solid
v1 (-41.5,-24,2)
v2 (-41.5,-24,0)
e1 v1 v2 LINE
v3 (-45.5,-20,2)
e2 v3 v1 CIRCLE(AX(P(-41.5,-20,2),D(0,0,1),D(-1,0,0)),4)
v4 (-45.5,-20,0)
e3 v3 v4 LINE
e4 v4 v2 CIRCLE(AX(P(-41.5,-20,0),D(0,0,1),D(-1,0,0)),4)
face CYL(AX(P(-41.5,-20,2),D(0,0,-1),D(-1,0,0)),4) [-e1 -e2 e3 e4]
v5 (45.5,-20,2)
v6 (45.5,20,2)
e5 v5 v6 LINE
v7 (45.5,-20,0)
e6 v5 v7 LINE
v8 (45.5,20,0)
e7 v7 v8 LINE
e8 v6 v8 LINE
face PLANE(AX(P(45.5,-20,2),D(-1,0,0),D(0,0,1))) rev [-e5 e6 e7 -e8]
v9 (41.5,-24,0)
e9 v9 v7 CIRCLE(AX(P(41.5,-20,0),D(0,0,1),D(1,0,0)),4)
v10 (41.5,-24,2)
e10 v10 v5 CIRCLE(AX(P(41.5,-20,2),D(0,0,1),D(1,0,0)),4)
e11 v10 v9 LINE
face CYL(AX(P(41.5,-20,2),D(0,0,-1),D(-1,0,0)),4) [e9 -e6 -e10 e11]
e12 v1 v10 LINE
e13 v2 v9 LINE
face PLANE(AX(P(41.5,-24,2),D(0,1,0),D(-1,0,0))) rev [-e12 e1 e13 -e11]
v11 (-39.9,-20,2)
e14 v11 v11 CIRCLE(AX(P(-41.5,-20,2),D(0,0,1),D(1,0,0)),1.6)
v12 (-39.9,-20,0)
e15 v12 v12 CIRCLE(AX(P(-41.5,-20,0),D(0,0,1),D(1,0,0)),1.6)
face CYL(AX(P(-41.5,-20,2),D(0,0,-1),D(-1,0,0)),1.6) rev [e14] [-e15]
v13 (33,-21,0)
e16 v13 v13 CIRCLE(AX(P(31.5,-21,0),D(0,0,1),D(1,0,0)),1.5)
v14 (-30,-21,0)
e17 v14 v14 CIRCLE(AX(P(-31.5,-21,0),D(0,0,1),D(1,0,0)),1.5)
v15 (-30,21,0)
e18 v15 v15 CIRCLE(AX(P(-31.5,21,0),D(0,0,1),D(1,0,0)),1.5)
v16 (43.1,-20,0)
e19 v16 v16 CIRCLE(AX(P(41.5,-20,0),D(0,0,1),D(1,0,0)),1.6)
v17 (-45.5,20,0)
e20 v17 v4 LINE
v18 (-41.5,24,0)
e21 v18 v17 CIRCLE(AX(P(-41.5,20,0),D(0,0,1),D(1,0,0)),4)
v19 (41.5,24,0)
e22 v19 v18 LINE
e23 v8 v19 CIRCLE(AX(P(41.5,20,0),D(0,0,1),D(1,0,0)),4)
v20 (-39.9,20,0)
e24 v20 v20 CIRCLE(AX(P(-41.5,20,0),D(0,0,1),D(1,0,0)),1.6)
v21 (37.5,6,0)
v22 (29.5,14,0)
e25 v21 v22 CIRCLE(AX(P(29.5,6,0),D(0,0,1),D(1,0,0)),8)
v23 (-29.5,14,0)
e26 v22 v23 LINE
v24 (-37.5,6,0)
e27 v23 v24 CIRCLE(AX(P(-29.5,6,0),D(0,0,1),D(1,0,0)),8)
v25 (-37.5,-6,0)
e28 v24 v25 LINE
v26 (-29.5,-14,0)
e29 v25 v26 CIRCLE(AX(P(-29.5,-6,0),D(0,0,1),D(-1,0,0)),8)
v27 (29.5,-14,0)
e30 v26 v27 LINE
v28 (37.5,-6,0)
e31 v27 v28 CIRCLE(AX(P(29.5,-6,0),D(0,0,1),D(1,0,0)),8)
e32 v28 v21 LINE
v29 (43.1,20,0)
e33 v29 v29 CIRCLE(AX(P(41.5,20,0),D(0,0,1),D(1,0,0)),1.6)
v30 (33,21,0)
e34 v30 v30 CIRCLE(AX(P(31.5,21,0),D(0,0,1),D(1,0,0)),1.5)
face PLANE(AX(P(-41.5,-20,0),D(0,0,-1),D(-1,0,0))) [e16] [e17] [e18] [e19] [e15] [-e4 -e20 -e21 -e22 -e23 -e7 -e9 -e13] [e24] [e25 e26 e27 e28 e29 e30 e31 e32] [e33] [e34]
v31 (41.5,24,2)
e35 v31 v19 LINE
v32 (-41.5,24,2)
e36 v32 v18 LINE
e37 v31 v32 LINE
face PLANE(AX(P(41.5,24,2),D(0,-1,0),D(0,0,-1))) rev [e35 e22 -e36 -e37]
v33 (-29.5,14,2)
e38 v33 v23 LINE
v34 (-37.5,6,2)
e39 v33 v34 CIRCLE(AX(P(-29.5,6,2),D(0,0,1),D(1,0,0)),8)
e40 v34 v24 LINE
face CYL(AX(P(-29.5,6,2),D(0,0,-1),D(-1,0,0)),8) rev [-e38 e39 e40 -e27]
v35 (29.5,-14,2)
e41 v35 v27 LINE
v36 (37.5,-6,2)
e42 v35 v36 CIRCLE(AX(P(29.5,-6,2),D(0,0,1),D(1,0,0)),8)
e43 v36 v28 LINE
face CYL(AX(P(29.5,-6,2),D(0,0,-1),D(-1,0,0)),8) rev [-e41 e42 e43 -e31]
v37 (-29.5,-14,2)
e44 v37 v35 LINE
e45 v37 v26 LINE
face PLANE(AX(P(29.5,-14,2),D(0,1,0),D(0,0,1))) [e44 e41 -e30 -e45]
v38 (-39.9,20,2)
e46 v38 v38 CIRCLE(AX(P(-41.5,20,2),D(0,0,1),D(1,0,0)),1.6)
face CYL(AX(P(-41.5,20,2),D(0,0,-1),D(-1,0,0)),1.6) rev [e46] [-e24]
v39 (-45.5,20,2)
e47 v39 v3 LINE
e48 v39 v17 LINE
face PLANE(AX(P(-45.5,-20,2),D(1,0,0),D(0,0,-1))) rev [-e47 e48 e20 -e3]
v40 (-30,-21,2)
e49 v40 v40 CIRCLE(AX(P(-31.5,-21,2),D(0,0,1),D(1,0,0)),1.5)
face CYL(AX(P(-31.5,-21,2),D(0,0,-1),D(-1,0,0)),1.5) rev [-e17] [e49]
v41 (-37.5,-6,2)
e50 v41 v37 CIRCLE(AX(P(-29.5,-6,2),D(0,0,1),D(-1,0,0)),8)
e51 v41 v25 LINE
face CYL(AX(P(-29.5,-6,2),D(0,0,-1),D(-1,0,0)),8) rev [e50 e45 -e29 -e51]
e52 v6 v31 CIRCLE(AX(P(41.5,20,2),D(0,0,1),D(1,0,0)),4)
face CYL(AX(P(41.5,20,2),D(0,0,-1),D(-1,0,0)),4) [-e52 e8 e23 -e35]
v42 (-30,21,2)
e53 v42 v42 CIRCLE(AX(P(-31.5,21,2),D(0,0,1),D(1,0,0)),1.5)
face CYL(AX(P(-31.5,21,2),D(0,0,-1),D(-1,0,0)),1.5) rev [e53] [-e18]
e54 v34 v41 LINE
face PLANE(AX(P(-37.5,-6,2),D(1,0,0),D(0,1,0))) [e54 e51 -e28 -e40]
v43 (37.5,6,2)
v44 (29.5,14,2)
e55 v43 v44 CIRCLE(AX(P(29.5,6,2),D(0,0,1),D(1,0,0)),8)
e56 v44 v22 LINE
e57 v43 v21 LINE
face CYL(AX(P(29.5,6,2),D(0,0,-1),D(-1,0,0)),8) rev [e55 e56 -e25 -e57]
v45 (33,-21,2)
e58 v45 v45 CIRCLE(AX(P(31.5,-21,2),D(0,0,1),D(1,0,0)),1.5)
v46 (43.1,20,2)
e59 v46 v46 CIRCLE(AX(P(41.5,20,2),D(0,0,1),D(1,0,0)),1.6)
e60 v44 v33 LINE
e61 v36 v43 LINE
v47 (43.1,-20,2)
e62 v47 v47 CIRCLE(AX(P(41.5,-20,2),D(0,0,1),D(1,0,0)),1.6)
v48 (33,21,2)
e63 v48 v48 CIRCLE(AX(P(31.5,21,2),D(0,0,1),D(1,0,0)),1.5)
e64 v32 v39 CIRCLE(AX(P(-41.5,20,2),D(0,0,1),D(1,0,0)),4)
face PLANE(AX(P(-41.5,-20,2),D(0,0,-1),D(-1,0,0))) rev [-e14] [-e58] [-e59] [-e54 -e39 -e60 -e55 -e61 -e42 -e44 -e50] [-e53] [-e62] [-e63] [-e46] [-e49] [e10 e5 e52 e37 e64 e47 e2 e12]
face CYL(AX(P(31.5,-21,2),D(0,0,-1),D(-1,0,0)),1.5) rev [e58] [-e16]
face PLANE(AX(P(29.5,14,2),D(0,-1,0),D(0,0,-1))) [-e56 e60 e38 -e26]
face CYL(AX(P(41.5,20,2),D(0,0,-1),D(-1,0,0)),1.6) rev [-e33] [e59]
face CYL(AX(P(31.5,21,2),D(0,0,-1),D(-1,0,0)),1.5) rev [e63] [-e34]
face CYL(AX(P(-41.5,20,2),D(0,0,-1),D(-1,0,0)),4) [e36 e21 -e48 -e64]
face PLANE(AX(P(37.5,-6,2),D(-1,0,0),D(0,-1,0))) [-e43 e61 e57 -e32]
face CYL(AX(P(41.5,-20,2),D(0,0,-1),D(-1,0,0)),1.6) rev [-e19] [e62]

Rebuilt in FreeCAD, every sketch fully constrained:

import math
import FreeCAD as App
import Part
import Sketcher
from FreeCAD import Vector
Q = App.Units.Quantity

doc = App.newDocument("Part")
body = doc.addObject("PartDesign::Body", "Body")

sketch1 = doc.addObject("Sketcher::SketchObject", "Sketch")
body.addObject(sketch1)
sketch1.AttachmentSupport = (doc.XY_Plane, [""])
sketch1.MapMode = "FlatFace"
sketch1.addGeometry([
    Part.LineSegment(Vector(-41.5, -24, 0), Vector(41.5, -24, 0)),
    Part.ArcOfCircle(Part.Circle(Vector(41.5, -20, 0), Vector(0, 0, 1), 4), math.radians(-90), math.radians(0)),
    Part.LineSegment(Vector(45.5, -20, 0), Vector(45.5, 20, 0)),
    Part.ArcOfCircle(Part.Circle(Vector(41.5, 20, 0), Vector(0, 0, 1), 4), math.radians(0), math.radians(90)),
    Part.LineSegment(Vector(41.5, 24, 0), Vector(-41.5, 24, 0)),
    Part.ArcOfCircle(Part.Circle(Vector(-41.5, 20, 0), Vector(0, 0, 1), 4), math.radians(90), math.radians(180)),
    Part.LineSegment(Vector(-45.5, 20, 0), Vector(-45.5, -20, 0)),
    Part.ArcOfCircle(Part.Circle(Vector(-41.5, -20, 0), Vector(0, 0, 1), 4), math.radians(180), math.radians(270)),
    Part.Circle(Vector(41.5, -20, 0), Vector(0, 0, 1), 1.6),
    Part.Circle(Vector(31.5, -21, 0), Vector(0, 0, 1), 1.5),
    Part.Circle(Vector(-31.5, -21, 0), Vector(0, 0, 1), 1.5),
    Part.Circle(Vector(-41.5, -20, 0), Vector(0, 0, 1), 1.6),
    Part.Circle(Vector(41.5, 20, 0), Vector(0, 0, 1), 1.6),
    Part.Circle(Vector(31.5, 21, 0), Vector(0, 0, 1), 1.5),
    Part.LineSegment(Vector(29.5, -14, 0), Vector(-29.5, -14, 0)),
    Part.ArcOfCircle(Part.Circle(Vector(-29.5, -6, 0), Vector(0, 0, 1), 8), math.radians(-180), math.radians(-90)),
    Part.LineSegment(Vector(-37.5, -6, 0), Vector(-37.5, 6, 0)),
    Part.ArcOfCircle(Part.Circle(Vector(-29.5, 6, 0), Vector(0, 0, 1), 8), math.radians(90), math.radians(180)),
    Part.LineSegment(Vector(-29.5, 14, 0), Vector(29.5, 14, 0)),
    Part.ArcOfCircle(Part.Circle(Vector(29.5, 6, 0), Vector(0, 0, 1), 8), math.radians(0), math.radians(90)),
    Part.LineSegment(Vector(37.5, 6, 0), Vector(37.5, -6, 0)),
    Part.ArcOfCircle(Part.Circle(Vector(29.5, -6, 0), Vector(0, 0, 1), 8), math.radians(-90), math.radians(0)),
    Part.Circle(Vector(-31.5, 21, 0), Vector(0, 0, 1), 1.5),
    Part.Circle(Vector(-41.5, 20, 0), Vector(0, 0, 1), 1.6),
], False)
sketch1.addConstraint([
    Sketcher.Constraint("Tangent", 0, 2, 1, 1),
    Sketcher.Constraint("Tangent", 1, 2, 2, 1),
    Sketcher.Constraint("Tangent", 2, 2, 3, 1),
    Sketcher.Constraint("Tangent", 3, 2, 4, 1),
    Sketcher.Constraint("Tangent", 4, 2, 5, 1),
    Sketcher.Constraint("Tangent", 5, 2, 6, 1),
    Sketcher.Constraint("Tangent", 6, 2, 7, 1),
    Sketcher.Constraint("Tangent", 7, 2, 0, 1),
    Sketcher.Constraint("Tangent", 14, 2, 15, 2),
    Sketcher.Constraint("Tangent", 15, 1, 16, 1),
    Sketcher.Constraint("Tangent", 16, 2, 17, 2),
    Sketcher.Constraint("Tangent", 17, 1, 18, 1),
    Sketcher.Constraint("Tangent", 18, 2, 19, 2),
    Sketcher.Constraint("Tangent", 19, 1, 20, 1),
    Sketcher.Constraint("Tangent", 20, 2, 21, 2),
    Sketcher.Constraint("Tangent", 21, 1, 14, 1),
    Sketcher.Constraint("Horizontal", 0),
    Sketcher.Constraint("Vertical", 2),
    Sketcher.Constraint("Horizontal", 4),
    Sketcher.Constraint("Vertical", 6),
    Sketcher.Constraint("Horizontal", 14),
    Sketcher.Constraint("Vertical", 16),
    Sketcher.Constraint("Horizontal", 18),
    Sketcher.Constraint("Vertical", 20),
    Sketcher.Constraint("Coincident", 8, 3, 1, 3),
    Sketcher.Constraint("Coincident", 11, 3, 7, 3),
    Sketcher.Constraint("Coincident", 12, 3, 3, 3),
    Sketcher.Constraint("Coincident", 23, 3, 5, 3),
    Sketcher.Constraint("Equal", 1, 3),
    Sketcher.Constraint("Equal", 3, 5),
    Sketcher.Constraint("Equal", 5, 7),
    Sketcher.Constraint("Equal", 9, 10),
    Sketcher.Constraint("Equal", 8, 11),
    Sketcher.Constraint("Equal", 11, 12),
    Sketcher.Constraint("Equal", 10, 13),
    Sketcher.Constraint("Equal", 15, 17),
    Sketcher.Constraint("Equal", 17, 19),
    Sketcher.Constraint("Equal", 19, 21),
    Sketcher.Constraint("Equal", 13, 22),
    Sketcher.Constraint("Equal", 12, 23),
    Sketcher.Constraint("Symmetric", 1, 3, 5, 3, -1, 1),
    Sketcher.Constraint("Symmetric", 10, 3, 13, 3, -1, 1),
    Sketcher.Constraint("Symmetric", 15, 3, 19, 3, -1, 1),
    Sketcher.Constraint("Symmetric", 9, 3, 22, 3, -1, 1),
    Sketcher.Constraint("Symmetric", 9, 3, 10, 3, -2),
    Sketcher.Constraint("Diameter", 9, Q("3 mm")),
    Sketcher.Constraint("Radius", 1, Q("4 mm")),
    Sketcher.Constraint("Radius", 15, Q("8 mm")),
    Sketcher.Constraint("Diameter", 8, Q("3.2 mm")),
    Sketcher.Constraint("DistanceX", 0, 1, 0, 2, Q("83 mm")),
    Sketcher.Constraint("DistanceX", 14, 2, 14, 1, Q("59 mm")),
    Sketcher.Constraint("DistanceY", 2, 1, 2, 2, Q("40 mm")),
    Sketcher.Constraint("DistanceY", 16, 1, 16, 2, Q("12 mm")),
    Sketcher.Constraint("DistanceY", 9, 3, -1, 1, Q("21 mm")),
    Sketcher.Constraint("DistanceX", 9, 3, 8, 3, Q("10 mm")),
])
pad1 = doc.addObject("PartDesign::Pad", "Pad")
body.addObject(pad1)
pad1.Profile = sketch1
pad1.Length = 2

doc.recompute()
